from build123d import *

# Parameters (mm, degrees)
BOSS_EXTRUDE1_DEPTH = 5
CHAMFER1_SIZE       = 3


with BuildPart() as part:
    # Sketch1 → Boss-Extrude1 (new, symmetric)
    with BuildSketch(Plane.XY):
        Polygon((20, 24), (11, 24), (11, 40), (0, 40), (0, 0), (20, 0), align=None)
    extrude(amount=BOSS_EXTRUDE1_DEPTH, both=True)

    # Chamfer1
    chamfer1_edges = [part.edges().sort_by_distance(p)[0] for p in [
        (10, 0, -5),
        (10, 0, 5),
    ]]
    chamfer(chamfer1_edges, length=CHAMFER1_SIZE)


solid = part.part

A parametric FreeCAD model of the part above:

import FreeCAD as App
import Part
import Sketcher


def edges_at(feature, points):
    """Names of the edges that pass closest to the given points."""
    edges = feature.Shape.Edges
    near = lambda p: min(range(len(edges)), key=lambda i: edges[i].distToShape(Part.Vertex(*p))[0])
    return sorted({f"Edge{near(p) + 1}" for p in points})

doc = App.newDocument("Part")
body = doc.addObject("PartDesign::Body", "Body")

sketch1 = body.newObject("Sketcher::SketchObject", "Sketch")
sketch1.AttachmentSupport = (doc.getObject("XY_Plane"), [""])
sketch1.MapMode = "FlatFace"
sketch1.addGeometry([
    Part.LineSegment(App.Vector(20, 24, 0), App.Vector(11, 24, 0)),
    Part.LineSegment(App.Vector(11, 24, 0), App.Vector(11, 40, 0)),
    Part.LineSegment(App.Vector(11, 40, 0), App.Vector(0, 40, 0)),
    Part.LineSegment(App.Vector(0, 40, 0), App.Vector(0, 0, 0)),
    Part.LineSegment(App.Vector(0, 0, 0), App.Vector(20, 0, 0)),
    Part.LineSegment(App.Vector(20, 0, 0), App.Vector(20, 24, 0)),
], False)
sketch1.addConstraint([
    Sketcher.Constraint("Coincident", 0, 2, 1, 1),
    Sketcher.Constraint("Coincident", 1, 2, 2, 1),
    Sketcher.Constraint("Coincident", 2, 2, 3, 1),
    Sketcher.Constraint("Coincident", 3, 2, 4, 1),
    Sketcher.Constraint("Coincident", 4, 2, 5, 1),
    Sketcher.Constraint("Coincident", 5, 2, 0, 1),
    Sketcher.Constraint("Horizontal", 0),
    Sketcher.Constraint("Vertical", 1),
    Sketcher.Constraint("Horizontal", 2),
    Sketcher.Constraint("Vertical", 3),
    Sketcher.Constraint("Horizontal", 4),
    Sketcher.Constraint("Vertical", 5),
    Sketcher.Constraint("Coincident", 3, 2, -1, 1),
    Sketcher.Constraint("DistanceX", 0, 2, 0, 1, 9.0),
    Sketcher.Constraint("DistanceX", 2, 2, 2, 1, 11.0),
    Sketcher.Constraint("DistanceY", 1, 1, 1, 2, 16.0),
    Sketcher.Constraint("DistanceY", 3, 2, 3, 1, 40.0),
])
pad1 = body.newObject("PartDesign::Pad", "Pad")
pad1.Profile = sketch1
pad1.Length = 10
pad1.Midplane = True
doc.recompute()

chamfer = body.newObject("PartDesign::Chamfer", "Chamfer")
chamfer.Base = (pad1, edges_at(pad1, [(10, 0, -5), (10, 0, 5)]))
chamfer.Size = 3

doc.recompute()
